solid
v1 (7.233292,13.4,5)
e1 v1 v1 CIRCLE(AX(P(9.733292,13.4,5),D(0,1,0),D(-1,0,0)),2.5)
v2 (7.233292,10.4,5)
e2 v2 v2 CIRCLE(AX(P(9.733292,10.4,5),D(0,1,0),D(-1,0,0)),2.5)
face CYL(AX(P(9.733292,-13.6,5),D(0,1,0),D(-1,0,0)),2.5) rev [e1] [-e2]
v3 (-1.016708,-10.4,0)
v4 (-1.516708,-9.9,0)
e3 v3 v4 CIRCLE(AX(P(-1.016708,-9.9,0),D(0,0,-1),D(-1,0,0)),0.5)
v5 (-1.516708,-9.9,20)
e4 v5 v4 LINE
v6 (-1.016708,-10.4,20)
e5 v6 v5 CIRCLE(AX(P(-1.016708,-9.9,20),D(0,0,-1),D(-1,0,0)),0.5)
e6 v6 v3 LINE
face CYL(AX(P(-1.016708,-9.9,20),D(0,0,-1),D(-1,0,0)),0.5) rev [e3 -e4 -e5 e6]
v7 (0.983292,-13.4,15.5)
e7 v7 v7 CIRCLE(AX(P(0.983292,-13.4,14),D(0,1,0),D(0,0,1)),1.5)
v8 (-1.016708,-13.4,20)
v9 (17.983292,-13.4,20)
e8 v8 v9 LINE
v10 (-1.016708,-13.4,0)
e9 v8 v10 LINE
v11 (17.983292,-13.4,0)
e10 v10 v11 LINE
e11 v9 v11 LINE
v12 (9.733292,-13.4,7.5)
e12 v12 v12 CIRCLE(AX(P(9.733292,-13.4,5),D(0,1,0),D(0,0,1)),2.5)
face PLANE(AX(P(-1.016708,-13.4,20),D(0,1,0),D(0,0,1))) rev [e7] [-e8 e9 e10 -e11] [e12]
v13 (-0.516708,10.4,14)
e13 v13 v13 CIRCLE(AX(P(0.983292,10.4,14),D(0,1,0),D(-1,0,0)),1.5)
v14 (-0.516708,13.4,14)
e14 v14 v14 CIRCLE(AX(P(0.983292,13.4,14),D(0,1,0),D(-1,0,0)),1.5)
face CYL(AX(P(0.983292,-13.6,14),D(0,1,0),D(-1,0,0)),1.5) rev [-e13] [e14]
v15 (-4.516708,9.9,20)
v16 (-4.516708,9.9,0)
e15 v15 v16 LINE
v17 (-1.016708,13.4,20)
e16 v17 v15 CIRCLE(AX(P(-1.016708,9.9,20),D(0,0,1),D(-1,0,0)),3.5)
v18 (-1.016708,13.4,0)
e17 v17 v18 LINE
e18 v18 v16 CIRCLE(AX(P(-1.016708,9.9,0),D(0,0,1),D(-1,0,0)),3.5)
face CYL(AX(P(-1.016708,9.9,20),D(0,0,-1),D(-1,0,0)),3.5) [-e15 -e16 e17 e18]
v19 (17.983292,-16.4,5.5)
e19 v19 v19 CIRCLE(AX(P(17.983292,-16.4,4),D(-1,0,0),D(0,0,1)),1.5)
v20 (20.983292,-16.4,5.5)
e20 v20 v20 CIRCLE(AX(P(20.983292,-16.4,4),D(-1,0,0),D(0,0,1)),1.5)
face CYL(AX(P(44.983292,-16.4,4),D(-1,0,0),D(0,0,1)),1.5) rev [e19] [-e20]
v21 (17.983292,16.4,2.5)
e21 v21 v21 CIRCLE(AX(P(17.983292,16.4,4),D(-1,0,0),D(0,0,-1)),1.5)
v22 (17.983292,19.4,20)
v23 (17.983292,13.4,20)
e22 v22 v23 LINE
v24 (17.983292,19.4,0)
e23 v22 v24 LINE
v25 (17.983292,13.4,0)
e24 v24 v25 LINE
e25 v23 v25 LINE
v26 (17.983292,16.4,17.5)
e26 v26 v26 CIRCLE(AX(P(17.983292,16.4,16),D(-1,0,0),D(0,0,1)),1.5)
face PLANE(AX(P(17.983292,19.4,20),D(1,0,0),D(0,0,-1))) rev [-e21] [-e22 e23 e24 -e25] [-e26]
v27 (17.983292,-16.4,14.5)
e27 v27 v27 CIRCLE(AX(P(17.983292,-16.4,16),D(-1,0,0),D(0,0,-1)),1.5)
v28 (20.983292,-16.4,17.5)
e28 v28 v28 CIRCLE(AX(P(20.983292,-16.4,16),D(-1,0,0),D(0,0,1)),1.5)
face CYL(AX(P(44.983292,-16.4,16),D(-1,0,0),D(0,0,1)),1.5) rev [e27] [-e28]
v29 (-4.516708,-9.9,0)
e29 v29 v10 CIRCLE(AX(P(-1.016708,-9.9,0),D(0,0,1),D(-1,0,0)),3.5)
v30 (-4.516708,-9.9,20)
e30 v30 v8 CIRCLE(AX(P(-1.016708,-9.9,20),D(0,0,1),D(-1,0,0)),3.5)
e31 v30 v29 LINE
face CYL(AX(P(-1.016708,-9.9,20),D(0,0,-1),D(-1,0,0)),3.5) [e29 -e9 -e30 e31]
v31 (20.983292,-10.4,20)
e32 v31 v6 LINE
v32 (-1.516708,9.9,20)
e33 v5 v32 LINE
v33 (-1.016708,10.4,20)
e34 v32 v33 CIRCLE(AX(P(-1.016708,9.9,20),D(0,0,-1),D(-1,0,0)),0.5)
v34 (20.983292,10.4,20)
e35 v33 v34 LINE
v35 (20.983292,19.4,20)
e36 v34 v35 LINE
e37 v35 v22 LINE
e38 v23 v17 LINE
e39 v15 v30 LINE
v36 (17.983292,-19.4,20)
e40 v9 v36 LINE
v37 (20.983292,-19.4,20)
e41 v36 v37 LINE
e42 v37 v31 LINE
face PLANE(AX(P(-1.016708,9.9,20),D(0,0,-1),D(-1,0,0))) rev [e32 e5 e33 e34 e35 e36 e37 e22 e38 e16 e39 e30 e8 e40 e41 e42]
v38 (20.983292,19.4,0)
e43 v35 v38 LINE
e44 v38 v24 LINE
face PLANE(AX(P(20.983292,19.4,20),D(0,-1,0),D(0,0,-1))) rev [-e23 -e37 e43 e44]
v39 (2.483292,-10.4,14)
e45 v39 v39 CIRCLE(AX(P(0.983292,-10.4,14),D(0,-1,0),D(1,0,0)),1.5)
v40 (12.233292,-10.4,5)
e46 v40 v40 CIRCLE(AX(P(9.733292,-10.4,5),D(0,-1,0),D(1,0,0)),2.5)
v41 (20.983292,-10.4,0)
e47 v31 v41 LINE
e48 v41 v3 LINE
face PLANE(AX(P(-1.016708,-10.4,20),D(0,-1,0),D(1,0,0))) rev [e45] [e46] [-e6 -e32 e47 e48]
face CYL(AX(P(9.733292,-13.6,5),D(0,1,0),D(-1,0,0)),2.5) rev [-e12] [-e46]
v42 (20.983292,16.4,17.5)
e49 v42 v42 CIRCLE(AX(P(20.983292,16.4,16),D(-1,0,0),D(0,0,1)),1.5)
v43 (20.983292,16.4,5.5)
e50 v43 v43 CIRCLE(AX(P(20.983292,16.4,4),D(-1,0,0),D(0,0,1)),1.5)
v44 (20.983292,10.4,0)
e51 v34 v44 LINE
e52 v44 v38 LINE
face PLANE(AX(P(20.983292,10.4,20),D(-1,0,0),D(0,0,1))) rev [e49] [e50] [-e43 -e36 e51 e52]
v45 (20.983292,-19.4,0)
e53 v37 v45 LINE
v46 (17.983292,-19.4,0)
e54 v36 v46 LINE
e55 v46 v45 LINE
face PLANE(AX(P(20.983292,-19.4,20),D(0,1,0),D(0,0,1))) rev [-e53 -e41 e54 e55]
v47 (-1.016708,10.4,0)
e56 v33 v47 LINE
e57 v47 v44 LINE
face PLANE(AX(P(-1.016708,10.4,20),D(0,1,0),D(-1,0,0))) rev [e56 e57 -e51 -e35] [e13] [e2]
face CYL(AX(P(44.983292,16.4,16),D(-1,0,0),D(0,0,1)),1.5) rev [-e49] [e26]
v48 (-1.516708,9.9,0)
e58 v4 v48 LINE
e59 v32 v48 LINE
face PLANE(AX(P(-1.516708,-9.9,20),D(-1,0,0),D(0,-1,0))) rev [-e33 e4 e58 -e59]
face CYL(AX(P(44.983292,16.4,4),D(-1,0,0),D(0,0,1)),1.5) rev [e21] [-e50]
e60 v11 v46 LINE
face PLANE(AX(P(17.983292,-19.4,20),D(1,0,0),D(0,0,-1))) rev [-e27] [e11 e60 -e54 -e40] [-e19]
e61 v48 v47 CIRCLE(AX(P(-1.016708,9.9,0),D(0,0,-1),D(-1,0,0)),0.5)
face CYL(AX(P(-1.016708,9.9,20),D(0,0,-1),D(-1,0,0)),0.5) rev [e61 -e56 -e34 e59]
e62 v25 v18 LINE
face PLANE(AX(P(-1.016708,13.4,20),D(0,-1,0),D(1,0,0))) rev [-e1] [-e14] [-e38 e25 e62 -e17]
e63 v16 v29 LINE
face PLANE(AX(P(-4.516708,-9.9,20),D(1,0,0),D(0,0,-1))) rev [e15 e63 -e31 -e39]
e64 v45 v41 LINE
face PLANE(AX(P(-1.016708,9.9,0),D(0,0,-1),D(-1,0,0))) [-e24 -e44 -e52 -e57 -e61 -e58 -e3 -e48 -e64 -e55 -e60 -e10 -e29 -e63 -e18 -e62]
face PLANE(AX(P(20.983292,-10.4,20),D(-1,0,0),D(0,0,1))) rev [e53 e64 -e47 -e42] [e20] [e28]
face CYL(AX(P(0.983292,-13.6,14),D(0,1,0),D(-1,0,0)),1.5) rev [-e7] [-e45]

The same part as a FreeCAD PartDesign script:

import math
import FreeCAD as App
import Part
import Sketcher
Q = App.Units.Quantity

doc = App.newDocument("Part")
body = doc.addObject("PartDesign::Body", "Body")

# Sketch on XY plane
sketch1 = body.newObject("Sketcher::SketchObject", "Sketch")
sketch1.AttachmentSupport = (doc.getObject("XY_Plane"), [""])
sketch1.MapMode = "FlatFace"
sketch1.addGeometry([
    Part.LineSegment(App.Vector(21, -10.4, 0), App.Vector(-1, -10.4, 0)),  # 0
    Part.ArcOfCircle(Part.Circle(App.Vector(-1, -9.9, 0), App.Vector(0, 0, 1), 0.5), math.radians(180), math.radians(270)),  # 1
    Part.LineSegment(App.Vector(-1.5, -9.9, 0), App.Vector(-1.5, 9.9, 0)),  # 2
    Part.ArcOfCircle(Part.Circle(App.Vector(-1, 9.9, 0), App.Vector(0, 0, 1), 0.5), math.radians(90), math.radians(180)),  # 3
    Part.LineSegment(App.Vector(-1, 10.4, 0), App.Vector(21, 10.4, 0)),  # 4
    Part.LineSegment(App.Vector(21, 10.4, 0), App.Vector(21, 19.4, 0)),  # 5
    Part.LineSegment(App.Vector(21, 19.4, 0), App.Vector(18, 19.4, 0)),  # 6
    Part.LineSegment(App.Vector(18, 19.4, 0), App.Vector(18, 13.4, 0)),  # 7
    Part.LineSegment(App.Vector(18, 13.4, 0), App.Vector(-1, 13.4, 0)),  # 8
    Part.ArcOfCircle(Part.Circle(App.Vector(-1, 9.9, 0), App.Vector(0, 0, 1), 3.5), math.radians(90), math.radians(180)),  # 9
    Part.LineSegment(App.Vector(-4.5, 9.9, 0), App.Vector(-4.5, -9.9, 0)),  # 10
    Part.ArcOfCircle(Part.Circle(App.Vector(-1, -9.9, 0), App.Vector(0, 0, 1), 3.5), math.radians(-180), math.radians(-90)),  # 11
    Part.LineSegment(App.Vector(-1, -13.4, 0), App.Vector(18, -13.4, 0)),  # 12
    Part.LineSegment(App.Vector(18, -13.4, 0), App.Vector(18, -19.4, 0)),  # 13
    Part.LineSegment(App.Vector(18, -19.4, 0), App.Vector(21, -19.4, 0)),  # 14
    Part.LineSegment(App.Vector(21, -19.4, 0), App.Vector(21, -10.4, 0)),  # 15
], False)
sketch1.addConstraint([
    Sketcher.Constraint("Tangent", 0, 2, 1, 2),
    Sketcher.Constraint("Tangent", 1, 1, 2, 1),
    Sketcher.Constraint("Tangent", 2, 2, 3, 2),
    Sketcher.Constraint("Tangent", 3, 1, 4, 1),
    Sketcher.Constraint("Coincident", 4, 2, 5, 1),
    Sketcher.Constraint("Coincident", 5, 2, 6, 1),
    Sketcher.Constraint("Coincident", 6, 2, 7, 1),
    Sketcher.Constraint("Coincident", 7, 2, 8, 1),
    Sketcher.Constraint("Tangent", 8, 2, 9, 1),
    Sketcher.Constraint("Tangent", 9, 2, 10, 1),
    Sketcher.Constraint("Tangent", 10, 2, 11, 1),
    Sketcher.Constraint("Tangent", 11, 2, 12, 1),
    Sketcher.Constraint("Coincident", 12, 2, 13, 1),
    Sketcher.Constraint("Coincident", 13, 2, 14, 1),
    Sketcher.Constraint("Coincident", 14, 2, 15, 1),
    Sketcher.Constraint("Coincident", 15, 2, 0, 1),
    Sketcher.Constraint("Horizontal", 0),
    Sketcher.Constraint("Vertical", 2),
    Sketcher.Constraint("Horizontal", 4),
    Sketcher.Constraint("Vertical", 5),
    Sketcher.Constraint("Horizontal", 6),
    Sketcher.Constraint("Vertical", 7),
    Sketcher.Constraint("Horizontal", 8),
    Sketcher.Constraint("Vertical", 10),
    Sketcher.Constraint("Horizontal", 12),
    Sketcher.Constraint("Vertical", 13),
    Sketcher.Constraint("Horizontal", 14),
    Sketcher.Constraint("Vertical", 15),
    Sketcher.Constraint("Coincident", 9, 3, 3, 3),
    Sketcher.Constraint("Coincident", 11, 3, 1, 3),
    Sketcher.Constraint("Equal", 1, 3),
    Sketcher.Constraint("Symmetric", 7, 2, 12, 2, -1),
    Sketcher.Constraint("Symmetric", 5, 2, 14, 2, -1),
    Sketcher.Constraint("Radius", 1, Q("0.5 mm")),
    Sketcher.Constraint("Radius", 9, Q("3.5 mm")),
    Sketcher.Constraint("DistanceX", 0, 2, 0, 1, Q("22 mm")),
    Sketcher.Constraint("DistanceX", 6, 2, 6, 1, Q("3 mm")),
    Sketcher.Constraint("DistanceY", 5, 1, 5, 2, Q("9 mm")),
    Sketcher.Constraint("DistanceY", 2, 1, 2, 2, Q("19.8 mm")),
    Sketcher.Constraint("DistanceX", 1, 3, -1, 1, Q("1.016708 mm")),
])
pad1 = body.newObject("PartDesign::Pad", "Pad")
pad1.Profile = sketch1
pad1.Length = 20

# Sketch on XZ plane
sketch2 = body.newObject("Sketcher::SketchObject", "Sketch001")
sketch2.AttachmentSupport = (doc.getObject("XZ_Plane"), [""])
sketch2.MapMode = "FlatFace"
sketch2.AttachmentOffset = App.Placement(App.Vector(0, 0, -13.4), App.Rotation())
sketch2.addGeometry([
    Part.Circle(App.Vector(1, 14, 0), App.Vector(0, 0, 1), 1.5),
    Part.Circle(App.Vector(9.7, 5, 0), App.Vector(0, 0, 1), 2.5),
], False)
sketch2.addConstraint([
    Sketcher.Constraint("Diameter", 0, Q("3 mm")),
    Sketcher.Constraint("Diameter", 1, Q("5 mm")),
    Sketcher.Constraint("DistanceY", -1, 1, 0, 3, Q("14 mm")),
    Sketcher.Constraint("DistanceY", -1, 1, 1, 3, Q("5 mm")),
    Sketcher.Constraint("DistanceX", 0, 3, 1, 3, Q("8.75 mm")),
    Sketcher.Constraint("DistanceX", -1, 1, 0, 3, Q("0.983292 mm")),
])
pocket1 = body.newObject("PartDesign::Pocket", "Pocket")
pocket1.Profile = sketch2
pocket1.Length = 27
pocket1.Reversed = True

# Sketch on YZ plane
sketch3 = body.newObject("Sketcher::SketchObject", "Sketch002")
sketch3.AttachmentSupport = (doc.getObject("YZ_Plane"), [""])
sketch3.MapMode = "FlatFace"
sketch3.AttachmentOffset = App.Placement(App.Vector(0, 0, 17.983292), App.Rotation())
sketch3.addGeometry([
    Part.Circle(App.Vector(16.4, 16, 0), App.Vector(0, 0, 1), 1.5),
    Part.Circle(App.Vector(16.4, 4, 0), App.Vector(0, 0, 1), 1.5),
    Part.Circle(App.Vector(-16.4, 4, 0), App.Vector(0, 0, 1), 1.5),
    Part.Circle(App.Vector(-16.4, 16, 0), App.Vector(0, 0, 1), 1.5),
], False)
sketch3.addConstraint([
    Sketcher.Constraint("Equal", 0, 1),
    Sketcher.Constraint("Equal", 1, 2),
    Sketcher.Constraint("Equal", 2, 3),
    Sketcher.Constraint("Symmetric", 1, 3, 2, 3, -2),
    Sketcher.Constraint("Symmetric", 0, 3, 3, 3, -2),
    Sketcher.Constraint("Vertical", 0, 3, 1, 3),
    Sketcher.Constraint("Diameter", 0, Q("3 mm")),
    Sketcher.Constraint("DistanceY", -1, 1, 0, 3, Q("16 mm")),
    Sketcher.Constraint("DistanceY", -1, 1, 1, 3, Q("4 mm")),
    Sketcher.Constraint("DistanceX", -1, 1, 0, 3, Q("16.4 mm")),
])
pocket2 = body.newObject("PartDesign::Pocket", "Pocket001")
pocket2.Profile = sketch3
pocket2.Length = 27
pocket2.Reversed = True

doc.recompute()
